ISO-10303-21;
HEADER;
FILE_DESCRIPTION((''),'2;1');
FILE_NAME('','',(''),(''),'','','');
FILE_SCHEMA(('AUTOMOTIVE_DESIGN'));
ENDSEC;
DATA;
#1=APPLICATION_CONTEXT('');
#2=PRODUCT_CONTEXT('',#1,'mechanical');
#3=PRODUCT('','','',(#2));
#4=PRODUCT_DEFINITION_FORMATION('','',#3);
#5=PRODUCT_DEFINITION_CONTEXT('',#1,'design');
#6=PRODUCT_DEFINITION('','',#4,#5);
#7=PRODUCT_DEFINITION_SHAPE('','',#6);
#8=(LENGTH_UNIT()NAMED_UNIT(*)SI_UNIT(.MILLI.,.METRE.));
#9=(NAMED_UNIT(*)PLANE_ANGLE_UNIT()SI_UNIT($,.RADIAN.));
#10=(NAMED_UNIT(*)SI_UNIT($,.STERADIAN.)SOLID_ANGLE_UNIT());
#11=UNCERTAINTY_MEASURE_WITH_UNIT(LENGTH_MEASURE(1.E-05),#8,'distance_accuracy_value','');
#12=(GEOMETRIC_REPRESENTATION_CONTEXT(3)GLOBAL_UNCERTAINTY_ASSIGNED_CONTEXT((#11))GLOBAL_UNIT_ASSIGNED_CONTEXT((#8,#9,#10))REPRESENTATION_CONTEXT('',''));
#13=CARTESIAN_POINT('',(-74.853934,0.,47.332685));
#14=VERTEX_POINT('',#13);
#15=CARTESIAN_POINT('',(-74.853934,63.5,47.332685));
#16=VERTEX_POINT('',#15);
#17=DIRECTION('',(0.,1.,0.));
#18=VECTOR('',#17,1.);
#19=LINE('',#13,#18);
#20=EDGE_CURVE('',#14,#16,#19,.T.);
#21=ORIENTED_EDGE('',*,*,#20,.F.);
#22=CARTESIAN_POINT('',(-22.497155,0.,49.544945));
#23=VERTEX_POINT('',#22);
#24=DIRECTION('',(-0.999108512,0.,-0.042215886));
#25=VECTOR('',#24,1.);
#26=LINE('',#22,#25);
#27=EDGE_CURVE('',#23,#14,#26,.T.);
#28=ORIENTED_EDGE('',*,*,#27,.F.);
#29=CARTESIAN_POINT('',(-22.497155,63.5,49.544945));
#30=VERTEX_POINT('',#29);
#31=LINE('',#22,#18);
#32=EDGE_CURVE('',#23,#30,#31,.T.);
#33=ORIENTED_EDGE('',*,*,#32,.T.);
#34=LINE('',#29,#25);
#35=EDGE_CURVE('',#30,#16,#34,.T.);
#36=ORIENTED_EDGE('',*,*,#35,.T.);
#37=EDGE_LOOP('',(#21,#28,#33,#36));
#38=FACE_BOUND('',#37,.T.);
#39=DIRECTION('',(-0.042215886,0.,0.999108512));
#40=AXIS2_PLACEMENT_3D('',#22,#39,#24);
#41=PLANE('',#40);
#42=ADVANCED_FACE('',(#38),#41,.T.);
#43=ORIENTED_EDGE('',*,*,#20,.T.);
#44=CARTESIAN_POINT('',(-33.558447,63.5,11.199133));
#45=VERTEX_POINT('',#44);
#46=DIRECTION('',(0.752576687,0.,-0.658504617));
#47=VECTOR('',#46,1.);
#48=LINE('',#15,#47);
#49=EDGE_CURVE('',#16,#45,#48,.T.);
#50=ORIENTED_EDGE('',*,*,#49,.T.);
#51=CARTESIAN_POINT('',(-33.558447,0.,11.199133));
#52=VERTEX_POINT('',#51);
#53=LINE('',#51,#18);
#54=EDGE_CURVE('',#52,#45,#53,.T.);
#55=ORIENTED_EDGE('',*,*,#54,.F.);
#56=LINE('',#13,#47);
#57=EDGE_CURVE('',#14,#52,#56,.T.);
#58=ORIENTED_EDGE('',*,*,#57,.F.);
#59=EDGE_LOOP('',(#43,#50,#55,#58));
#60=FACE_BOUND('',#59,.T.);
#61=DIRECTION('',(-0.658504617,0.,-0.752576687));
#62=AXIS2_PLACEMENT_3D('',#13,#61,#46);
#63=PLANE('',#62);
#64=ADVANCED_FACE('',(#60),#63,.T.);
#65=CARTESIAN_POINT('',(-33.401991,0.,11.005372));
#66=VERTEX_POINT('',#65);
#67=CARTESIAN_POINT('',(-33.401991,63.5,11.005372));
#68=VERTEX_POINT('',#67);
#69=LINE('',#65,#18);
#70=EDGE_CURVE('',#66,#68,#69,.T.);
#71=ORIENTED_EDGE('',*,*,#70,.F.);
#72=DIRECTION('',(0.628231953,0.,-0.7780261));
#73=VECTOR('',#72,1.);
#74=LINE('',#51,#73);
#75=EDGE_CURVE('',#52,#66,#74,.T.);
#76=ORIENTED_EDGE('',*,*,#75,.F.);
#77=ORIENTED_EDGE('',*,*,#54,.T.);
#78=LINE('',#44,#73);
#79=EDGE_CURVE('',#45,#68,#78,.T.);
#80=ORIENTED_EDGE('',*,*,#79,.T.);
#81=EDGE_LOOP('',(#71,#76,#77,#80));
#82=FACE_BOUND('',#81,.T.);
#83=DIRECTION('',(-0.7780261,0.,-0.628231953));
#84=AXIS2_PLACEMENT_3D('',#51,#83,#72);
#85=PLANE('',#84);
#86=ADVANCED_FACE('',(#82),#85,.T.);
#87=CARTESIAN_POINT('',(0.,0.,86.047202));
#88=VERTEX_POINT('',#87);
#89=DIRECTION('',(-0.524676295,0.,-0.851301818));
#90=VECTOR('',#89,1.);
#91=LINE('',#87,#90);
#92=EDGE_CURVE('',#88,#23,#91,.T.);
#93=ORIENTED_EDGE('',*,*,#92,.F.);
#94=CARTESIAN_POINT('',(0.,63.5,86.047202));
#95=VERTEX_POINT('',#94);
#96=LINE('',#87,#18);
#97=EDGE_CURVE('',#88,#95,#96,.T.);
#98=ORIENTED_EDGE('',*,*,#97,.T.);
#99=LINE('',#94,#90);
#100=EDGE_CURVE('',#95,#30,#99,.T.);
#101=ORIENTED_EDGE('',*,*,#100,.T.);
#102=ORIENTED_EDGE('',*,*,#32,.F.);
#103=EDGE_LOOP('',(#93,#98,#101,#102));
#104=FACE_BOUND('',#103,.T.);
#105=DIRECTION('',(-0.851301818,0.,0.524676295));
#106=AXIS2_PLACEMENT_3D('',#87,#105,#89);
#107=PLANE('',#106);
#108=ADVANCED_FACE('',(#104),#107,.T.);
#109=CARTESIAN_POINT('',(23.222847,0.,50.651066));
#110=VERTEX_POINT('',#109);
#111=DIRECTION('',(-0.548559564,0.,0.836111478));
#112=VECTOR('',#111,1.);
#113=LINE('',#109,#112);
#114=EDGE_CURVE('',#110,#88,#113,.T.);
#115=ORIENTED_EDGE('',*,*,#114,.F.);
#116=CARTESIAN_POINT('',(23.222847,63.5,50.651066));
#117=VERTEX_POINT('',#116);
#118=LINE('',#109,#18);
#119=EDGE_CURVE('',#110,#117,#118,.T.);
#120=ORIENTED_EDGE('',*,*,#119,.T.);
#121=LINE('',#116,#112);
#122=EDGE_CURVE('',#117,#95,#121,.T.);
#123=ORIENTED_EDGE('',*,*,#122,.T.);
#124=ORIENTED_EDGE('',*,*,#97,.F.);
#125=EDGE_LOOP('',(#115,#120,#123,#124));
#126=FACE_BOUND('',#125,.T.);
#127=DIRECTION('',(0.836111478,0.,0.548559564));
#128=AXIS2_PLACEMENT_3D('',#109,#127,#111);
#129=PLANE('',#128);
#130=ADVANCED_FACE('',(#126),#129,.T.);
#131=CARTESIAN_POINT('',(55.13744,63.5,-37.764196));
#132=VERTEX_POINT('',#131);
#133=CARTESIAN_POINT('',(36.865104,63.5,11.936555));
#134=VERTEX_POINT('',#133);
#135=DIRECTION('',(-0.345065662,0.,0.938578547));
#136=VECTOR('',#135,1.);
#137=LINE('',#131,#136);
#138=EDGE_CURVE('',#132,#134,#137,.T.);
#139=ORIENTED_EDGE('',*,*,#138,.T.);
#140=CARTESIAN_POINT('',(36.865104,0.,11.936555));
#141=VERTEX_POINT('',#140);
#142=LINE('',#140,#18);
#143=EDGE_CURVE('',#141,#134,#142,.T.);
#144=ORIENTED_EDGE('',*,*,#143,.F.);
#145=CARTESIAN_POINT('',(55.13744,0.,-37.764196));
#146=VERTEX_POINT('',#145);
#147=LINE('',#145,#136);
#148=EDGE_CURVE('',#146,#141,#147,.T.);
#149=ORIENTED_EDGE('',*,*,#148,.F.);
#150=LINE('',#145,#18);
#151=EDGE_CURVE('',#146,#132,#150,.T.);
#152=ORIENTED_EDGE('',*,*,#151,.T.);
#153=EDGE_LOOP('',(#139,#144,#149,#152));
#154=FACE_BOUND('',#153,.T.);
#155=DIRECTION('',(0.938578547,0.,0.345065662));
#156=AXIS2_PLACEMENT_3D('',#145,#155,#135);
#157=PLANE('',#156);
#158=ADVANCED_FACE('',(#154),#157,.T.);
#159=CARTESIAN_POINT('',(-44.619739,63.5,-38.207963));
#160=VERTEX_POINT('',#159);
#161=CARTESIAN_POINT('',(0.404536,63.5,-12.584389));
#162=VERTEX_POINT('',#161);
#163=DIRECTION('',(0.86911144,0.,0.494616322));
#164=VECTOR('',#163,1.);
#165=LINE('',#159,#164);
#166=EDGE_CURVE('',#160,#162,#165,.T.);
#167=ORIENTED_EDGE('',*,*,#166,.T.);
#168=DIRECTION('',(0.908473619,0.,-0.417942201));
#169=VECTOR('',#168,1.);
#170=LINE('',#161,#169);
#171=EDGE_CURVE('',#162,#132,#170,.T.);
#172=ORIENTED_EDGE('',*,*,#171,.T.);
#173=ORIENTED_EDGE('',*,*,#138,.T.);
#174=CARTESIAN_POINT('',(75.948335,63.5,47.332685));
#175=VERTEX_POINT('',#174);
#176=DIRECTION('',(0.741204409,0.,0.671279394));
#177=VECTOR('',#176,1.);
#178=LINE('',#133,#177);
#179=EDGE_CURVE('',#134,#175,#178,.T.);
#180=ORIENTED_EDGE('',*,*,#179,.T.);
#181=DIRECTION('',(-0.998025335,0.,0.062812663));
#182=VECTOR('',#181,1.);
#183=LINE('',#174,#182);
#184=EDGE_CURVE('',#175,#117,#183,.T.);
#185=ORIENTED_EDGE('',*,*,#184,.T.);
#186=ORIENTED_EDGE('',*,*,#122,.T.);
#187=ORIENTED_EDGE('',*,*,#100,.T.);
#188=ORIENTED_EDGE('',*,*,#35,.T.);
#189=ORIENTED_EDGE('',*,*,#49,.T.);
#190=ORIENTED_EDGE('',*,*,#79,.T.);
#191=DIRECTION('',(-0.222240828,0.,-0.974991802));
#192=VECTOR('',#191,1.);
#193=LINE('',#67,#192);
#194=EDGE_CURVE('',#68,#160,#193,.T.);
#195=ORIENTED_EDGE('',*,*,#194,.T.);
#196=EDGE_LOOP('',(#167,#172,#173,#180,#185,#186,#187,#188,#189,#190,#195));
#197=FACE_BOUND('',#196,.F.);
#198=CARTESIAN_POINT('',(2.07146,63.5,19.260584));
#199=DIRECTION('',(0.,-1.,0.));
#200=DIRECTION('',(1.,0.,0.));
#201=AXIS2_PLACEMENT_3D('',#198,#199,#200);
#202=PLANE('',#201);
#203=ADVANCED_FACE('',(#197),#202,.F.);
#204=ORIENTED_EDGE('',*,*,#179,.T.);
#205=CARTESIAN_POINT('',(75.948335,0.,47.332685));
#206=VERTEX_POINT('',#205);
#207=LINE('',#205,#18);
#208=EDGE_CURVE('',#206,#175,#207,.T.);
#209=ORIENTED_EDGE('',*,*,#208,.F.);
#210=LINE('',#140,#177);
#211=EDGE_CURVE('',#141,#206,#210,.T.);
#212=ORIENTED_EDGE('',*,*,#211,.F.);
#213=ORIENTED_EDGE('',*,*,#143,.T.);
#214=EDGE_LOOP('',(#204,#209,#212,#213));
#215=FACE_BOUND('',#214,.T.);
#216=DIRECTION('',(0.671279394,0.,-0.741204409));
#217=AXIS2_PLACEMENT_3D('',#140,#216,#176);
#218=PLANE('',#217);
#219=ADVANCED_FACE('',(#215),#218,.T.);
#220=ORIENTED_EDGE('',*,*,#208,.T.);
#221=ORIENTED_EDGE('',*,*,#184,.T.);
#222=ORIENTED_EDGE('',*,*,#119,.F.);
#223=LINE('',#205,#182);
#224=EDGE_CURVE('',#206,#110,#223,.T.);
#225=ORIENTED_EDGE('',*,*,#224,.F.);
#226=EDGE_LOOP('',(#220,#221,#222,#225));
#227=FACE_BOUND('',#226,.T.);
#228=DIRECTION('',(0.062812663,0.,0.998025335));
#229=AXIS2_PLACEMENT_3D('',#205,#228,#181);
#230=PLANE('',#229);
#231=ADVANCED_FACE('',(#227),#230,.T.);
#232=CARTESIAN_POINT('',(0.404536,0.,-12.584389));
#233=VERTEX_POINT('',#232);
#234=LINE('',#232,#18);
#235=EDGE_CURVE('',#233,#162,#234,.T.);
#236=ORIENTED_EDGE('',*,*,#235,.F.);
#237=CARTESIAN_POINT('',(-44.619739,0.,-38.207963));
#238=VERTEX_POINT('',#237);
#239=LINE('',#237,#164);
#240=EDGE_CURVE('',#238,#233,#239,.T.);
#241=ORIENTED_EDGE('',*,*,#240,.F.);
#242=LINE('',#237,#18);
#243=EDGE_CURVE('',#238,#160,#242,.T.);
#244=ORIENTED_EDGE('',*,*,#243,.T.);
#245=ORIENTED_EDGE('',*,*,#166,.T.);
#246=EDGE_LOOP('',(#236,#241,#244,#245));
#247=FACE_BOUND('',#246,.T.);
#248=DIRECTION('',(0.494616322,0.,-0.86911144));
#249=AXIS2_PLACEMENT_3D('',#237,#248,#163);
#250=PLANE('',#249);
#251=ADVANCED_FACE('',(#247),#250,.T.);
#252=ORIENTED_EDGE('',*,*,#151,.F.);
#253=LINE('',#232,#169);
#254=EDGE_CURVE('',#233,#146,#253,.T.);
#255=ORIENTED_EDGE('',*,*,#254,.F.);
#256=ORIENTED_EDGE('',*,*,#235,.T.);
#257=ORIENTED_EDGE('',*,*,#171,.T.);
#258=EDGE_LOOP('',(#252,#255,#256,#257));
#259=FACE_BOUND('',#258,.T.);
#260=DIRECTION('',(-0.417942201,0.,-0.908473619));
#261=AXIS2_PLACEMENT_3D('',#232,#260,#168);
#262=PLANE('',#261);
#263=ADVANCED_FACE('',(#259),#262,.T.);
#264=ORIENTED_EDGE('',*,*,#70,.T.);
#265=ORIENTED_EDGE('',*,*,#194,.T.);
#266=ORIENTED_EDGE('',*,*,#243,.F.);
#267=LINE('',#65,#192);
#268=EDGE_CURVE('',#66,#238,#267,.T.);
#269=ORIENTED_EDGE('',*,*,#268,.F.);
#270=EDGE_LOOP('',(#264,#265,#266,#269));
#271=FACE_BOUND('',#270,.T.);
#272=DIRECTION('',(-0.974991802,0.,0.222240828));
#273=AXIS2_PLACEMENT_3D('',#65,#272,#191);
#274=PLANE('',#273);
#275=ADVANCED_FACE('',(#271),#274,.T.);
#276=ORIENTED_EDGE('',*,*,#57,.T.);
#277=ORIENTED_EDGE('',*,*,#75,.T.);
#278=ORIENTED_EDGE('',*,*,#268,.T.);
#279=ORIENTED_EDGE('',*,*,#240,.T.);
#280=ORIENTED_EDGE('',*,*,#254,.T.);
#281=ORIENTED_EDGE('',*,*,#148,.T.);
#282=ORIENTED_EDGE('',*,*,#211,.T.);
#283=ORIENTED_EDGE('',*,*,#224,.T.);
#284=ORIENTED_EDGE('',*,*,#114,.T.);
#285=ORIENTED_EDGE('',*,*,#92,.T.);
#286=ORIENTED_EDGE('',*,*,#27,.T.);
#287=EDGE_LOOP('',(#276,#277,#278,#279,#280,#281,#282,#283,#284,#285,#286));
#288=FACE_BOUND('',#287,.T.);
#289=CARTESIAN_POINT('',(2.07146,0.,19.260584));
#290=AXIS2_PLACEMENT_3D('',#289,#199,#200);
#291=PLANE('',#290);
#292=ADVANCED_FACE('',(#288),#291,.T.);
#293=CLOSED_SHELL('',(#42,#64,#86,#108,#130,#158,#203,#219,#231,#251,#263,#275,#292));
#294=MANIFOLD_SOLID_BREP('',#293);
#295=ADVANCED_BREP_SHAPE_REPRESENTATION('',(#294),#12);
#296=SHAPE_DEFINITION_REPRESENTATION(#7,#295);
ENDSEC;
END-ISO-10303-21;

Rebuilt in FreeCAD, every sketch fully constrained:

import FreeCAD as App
import Part
import Sketcher
from FreeCAD import Vector
Q = App.Units.Quantity

doc = App.newDocument("Part")
params = doc.addObject("Spreadsheet::Sheet", "Params")
for row, (alias, value) in enumerate([
    ("pad1_length", "2.5 in"),
], start=1):
    params.set(f"A{row}", alias)
    params.set(f"B{row}", "=" + value)
    params.setAlias(f"B{row}", alias)

body = doc.addObject("PartDesign::Body", "Body")

# Sketch on XZ plane
sketch1 = body.newObject("Sketcher::SketchObject", "Sketch")
sketch1.AttachmentSupport = (doc.getObject("XZ_Plane"), [""])
sketch1.MapMode = "FlatFace"
sketch1.addGeometry(Part.LineSegment(Vector(0, 86.05, 0), Vector(-22.5, 49.54, 0)), False)
sketch1.addGeometry(Part.LineSegment(Vector(-22.5, 49.54, 0), Vector(-74.85, 47.33, 0)), False)
sketch1.addGeometry(Part.LineSegment(Vector(-74.85, 47.33, 0), Vector(-33.56, 11.2, 0)), False)
sketch1.addGeometry(Part.LineSegment(Vector(-33.56, 11.2, 0), Vector(-33.4, 11.01, 0)), False)
sketch1.addGeometry(Part.LineSegment(Vector(-33.4, 11.01, 0), Vector(-44.62, -38.21, 0)), False)
sketch1.addGeometry(Part.LineSegment(Vector(-44.62, -38.21, 0), Vector(0.4, -12.58, 0)), False)
sketch1.addGeometry(Part.LineSegment(Vector(0.4, -12.58, 0), Vector(55.14, -37.76, 0)), False)
sketch1.addGeometry(Part.LineSegment(Vector(55.14, -37.76, 0), Vector(36.87, 11.94, 0)), False)
sketch1.addGeometry(Part.LineSegment(Vector(36.87, 11.94, 0), Vector(75.95, 47.33, 0)), False)
sketch1.addGeometry(Part.LineSegment(Vector(75.95, 47.33, 0), Vector(23.22, 50.65, 0)), False)
sketch1.addGeometry(Part.LineSegment(Vector(23.22, 50.65, 0), Vector(0, 86.05, 0)), False)
sketch1.addConstraint(Sketcher.Constraint("Coincident", 0, 2, 1, 1))
sketch1.addConstraint(Sketcher.Constraint("Coincident", 1, 2, 2, 1))
sketch1.addConstraint(Sketcher.Constraint("Coincident", 2, 2, 3, 1))
sketch1.addConstraint(Sketcher.Constraint("Coincident", 3, 2, 4, 1))
sketch1.addConstraint(Sketcher.Constraint("Coincident", 4, 2, 5, 1))
sketch1.addConstraint(Sketcher.Constraint("Coincident", 5, 2, 6, 1))
sketch1.addConstraint(Sketcher.Constraint("Coincident", 6, 2, 7, 1))
sketch1.addConstraint(Sketcher.Constraint("Coincident", 7, 2, 8, 1))
sketch1.addConstraint(Sketcher.Constraint("Coincident", 8, 2, 9, 1))
sketch1.addConstraint(Sketcher.Constraint("Coincident", 9, 2, 10, 1))
sketch1.addConstraint(Sketcher.Constraint("Coincident", 10, 2, 0, 1))
sketch1.addConstraint(Sketcher.Constraint("PointOnObject", 10, 2, -2))
sketch1.addConstraint(Sketcher.Constraint("Horizontal", 1, 2, 8, 2))
sketch1.addConstraint(Sketcher.Constraint("DistanceX", 0, 2, 9, 2, Q("1.8000001 in")))
sketch1.addConstraint(Sketcher.Constraint("DistanceY", -1, 1, 10, 2, Q("86.047202 mm")))
sketch1.addConstraint(Sketcher.Constraint("DistanceX", 5, 2, 8, 2, Q("75.543799 mm")))
sketch1.addConstraint(Sketcher.Constraint("Distance", 0, Q("42.878162 mm")))
sketch1.addConstraint(Sketcher.Constraint("Distance", 2, Q("54.872132 mm")))
sketch1.addConstraint(Sketcher.Constraint("Distance", 3, Q("0.249042 mm")))
sketch1.addConstraint(Sketcher.Constraint("Distance", 4, Q("50.47564 mm")))
sketch1.addConstraint(Sketcher.Constraint("Distance", 5, Q("51.80495 mm")))
sketch1.addConstraint(Sketcher.Constraint("Distance", 9, Q("52.829809 mm")))
sketch1.addConstraint(Sketcher.Constraint("Distance", 10, Q("42.33423 mm")))
sketch1.addConstraint(Sketcher.Constraint("DistanceX", 3, 2, -1, 1, Q("33.401991 mm")))
sketch1.addConstraint(Sketcher.Constraint("DistanceX", 4, 2, -1, 1, Q("44.619739 mm")))
sketch1.addConstraint(Sketcher.Constraint("DistanceY", 5, 2, -1, 1, Q("12.584389 mm")))
sketch1.addConstraint(Sketcher.Constraint("DistanceX", -1, 1, 6, 2, Q("55.13744 mm")))
sketch1.addConstraint(Sketcher.Constraint("DistanceX", 1, 2, 0, 2, Q("52.356779 mm")))
sketch1.addConstraint(Sketcher.Constraint("DistanceY", 1, 2, 0, 2, Q("2.21226 mm")))
sketch1.addConstraint(Sketcher.Constraint("DistanceY", 2, 2, 0, 2, Q("38.345812 mm")))
sketch1.addConstraint(Sketcher.Constraint("DistanceY", 6, 2, 2, 2, Q("48.963329 mm")))
sketch1.addConstraint(Sketcher.Constraint("DistanceX", 5, 2, 7, 2, Q("36.460568 mm")))
sketch1.addConstraint(Sketcher.Constraint("DistanceY", 6, 2, 7, 2, Q("49.700751 mm")))
pad1 = body.newObject("PartDesign::Pad", "Pad")
pad1.Profile = sketch1
pad1.setExpression("Length", "Params.pad1_length")
pad1.Reversed = True

doc.recompute()
